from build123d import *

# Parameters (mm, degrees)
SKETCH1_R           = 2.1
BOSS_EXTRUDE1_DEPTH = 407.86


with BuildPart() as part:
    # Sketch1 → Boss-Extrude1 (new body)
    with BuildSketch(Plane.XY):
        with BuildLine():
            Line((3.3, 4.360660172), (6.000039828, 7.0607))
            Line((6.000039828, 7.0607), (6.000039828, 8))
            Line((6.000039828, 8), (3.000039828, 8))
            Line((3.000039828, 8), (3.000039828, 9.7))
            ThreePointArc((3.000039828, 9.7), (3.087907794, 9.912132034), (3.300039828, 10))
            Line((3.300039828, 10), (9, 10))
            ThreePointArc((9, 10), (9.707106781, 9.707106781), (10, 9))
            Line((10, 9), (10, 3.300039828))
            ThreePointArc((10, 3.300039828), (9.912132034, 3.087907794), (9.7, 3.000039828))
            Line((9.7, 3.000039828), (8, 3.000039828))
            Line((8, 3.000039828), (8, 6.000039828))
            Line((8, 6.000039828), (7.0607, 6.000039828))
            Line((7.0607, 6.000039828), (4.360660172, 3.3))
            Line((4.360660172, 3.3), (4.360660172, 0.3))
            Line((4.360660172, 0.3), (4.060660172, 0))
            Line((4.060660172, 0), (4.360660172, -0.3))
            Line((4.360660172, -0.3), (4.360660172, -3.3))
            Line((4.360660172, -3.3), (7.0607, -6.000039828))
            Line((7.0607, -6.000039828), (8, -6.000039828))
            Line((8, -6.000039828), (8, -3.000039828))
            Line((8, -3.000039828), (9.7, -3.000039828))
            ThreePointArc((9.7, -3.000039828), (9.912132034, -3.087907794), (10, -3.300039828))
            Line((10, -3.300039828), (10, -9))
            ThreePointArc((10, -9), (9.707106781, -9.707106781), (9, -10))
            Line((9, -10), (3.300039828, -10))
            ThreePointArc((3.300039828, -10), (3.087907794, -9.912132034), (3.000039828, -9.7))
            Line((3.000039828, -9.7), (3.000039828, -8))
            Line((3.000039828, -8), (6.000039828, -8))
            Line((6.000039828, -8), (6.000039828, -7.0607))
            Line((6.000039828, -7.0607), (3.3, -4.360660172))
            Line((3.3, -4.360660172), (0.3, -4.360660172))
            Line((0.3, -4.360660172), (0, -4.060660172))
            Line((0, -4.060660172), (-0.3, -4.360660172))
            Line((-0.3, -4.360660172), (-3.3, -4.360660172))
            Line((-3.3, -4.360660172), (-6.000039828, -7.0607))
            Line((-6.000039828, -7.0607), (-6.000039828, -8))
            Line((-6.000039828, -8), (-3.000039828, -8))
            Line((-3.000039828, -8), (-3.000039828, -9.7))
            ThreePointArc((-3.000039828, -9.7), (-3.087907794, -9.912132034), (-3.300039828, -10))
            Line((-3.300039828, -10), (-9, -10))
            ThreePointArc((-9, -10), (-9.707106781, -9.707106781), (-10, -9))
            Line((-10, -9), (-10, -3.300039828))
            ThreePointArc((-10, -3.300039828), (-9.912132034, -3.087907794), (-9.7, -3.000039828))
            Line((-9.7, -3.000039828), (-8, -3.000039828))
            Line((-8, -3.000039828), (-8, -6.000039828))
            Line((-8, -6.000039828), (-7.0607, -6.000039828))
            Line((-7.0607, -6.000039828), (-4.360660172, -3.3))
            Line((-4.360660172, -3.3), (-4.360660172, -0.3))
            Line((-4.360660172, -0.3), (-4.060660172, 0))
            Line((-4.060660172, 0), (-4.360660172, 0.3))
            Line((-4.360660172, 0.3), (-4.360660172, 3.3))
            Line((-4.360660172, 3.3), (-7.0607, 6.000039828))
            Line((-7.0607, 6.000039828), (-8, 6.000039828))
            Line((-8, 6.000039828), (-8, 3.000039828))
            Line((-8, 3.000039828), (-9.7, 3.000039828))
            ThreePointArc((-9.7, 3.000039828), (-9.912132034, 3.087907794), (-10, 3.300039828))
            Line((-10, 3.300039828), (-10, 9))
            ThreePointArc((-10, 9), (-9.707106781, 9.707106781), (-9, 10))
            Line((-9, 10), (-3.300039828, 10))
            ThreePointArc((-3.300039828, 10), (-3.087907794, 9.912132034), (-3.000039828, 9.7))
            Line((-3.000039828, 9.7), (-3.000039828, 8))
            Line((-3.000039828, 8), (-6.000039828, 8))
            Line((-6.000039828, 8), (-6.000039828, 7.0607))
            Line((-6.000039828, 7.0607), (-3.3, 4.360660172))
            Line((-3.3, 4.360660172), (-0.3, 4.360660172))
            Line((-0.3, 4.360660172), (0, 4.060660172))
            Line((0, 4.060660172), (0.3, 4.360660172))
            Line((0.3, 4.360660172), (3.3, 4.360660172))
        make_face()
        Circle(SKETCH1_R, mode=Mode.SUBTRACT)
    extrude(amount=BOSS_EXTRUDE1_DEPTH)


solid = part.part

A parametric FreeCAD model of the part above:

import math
import FreeCAD as App
import Part
import Sketcher

doc = App.newDocument("Part")
body = doc.addObject("PartDesign::Body", "Body")

sketch1 = body.newObject("Sketcher::SketchObject", "Sketch")
sketch1.AttachmentSupport = (doc.getObject("XY_Plane"), [""])
sketch1.MapMode = "FlatFace"
sketch1.addGeometry([
    Part.LineSegment(App.Vector(6.00004, 7.0607, 0), App.Vector(3.3, 4.36066, 0)),
    Part.LineSegment(App.Vector(3.3, 4.36066, 0), App.Vector(0.3, 4.36066, 0)),
    Part.LineSegment(App.Vector(0.3, 4.36066, 0), App.Vector(0, 4.06066, 0)),
    Part.LineSegment(App.Vector(0, 4.06066, 0), App.Vector(-0.3, 4.36066, 0)),
    Part.LineSegment(App.Vector(-0.3, 4.36066, 0), App.Vector(-3.3, 4.36066, 0)),
    Part.LineSegment(App.Vector(-3.3, 4.36066, 0), App.Vector(-6.00004, 7.0607, 0)),
    Part.LineSegment(App.Vector(-6.00004, 7.0607, 0), App.Vector(-6.00004, 8, 0)),
    Part.LineSegment(App.Vector(-6.00004, 8, 0), App.Vector(-3.00004, 8, 0)),
    Part.LineSegment(App.Vector(-3.00004, 8, 0), App.Vector(-3.00004, 9.7, 0)),
    Part.ArcOfCircle(Part.Circle(App.Vector(-3.30004, 9.7, 0), App.Vector(0, 0, 1), 0.3), math.radians(0), math.radians(90)),
    Part.LineSegment(App.Vector(-3.30004, 10, 0), App.Vector(-9, 10, 0)),
    Part.ArcOfCircle(Part.Circle(App.Vector(-9, 9, 0), App.Vector(0, 0, 1), 1), math.radians(90), math.radians(180)),
    Part.LineSegment(App.Vector(-10, 9, 0), App.Vector(-10, 3.30004, 0)),
    Part.ArcOfCircle(Part.Circle(App.Vector(-9.7, 3.30004, 0), App.Vector(0, 0, 1), 0.3), math.radians(-180), math.radians(-90)),
    Part.LineSegment(App.Vector(-9.7, 3.00004, 0), App.Vector(-8, 3.00004, 0)),
    Part.LineSegment(App.Vector(-8, 3.00004, 0), App.Vector(-8, 6.00004, 0)),
    Part.LineSegment(App.Vector(-8, 6.00004, 0), App.Vector(-7.0607, 6.00004, 0)),
    Part.LineSegment(App.Vector(-7.0607, 6.00004, 0), App.Vector(-4.36066, 3.3, 0)),
    Part.LineSegment(App.Vector(-4.36066, 3.3, 0), App.Vector(-4.36066, 0.3, 0)),
    Part.LineSegment(App.Vector(-4.36066, 0.3, 0), App.Vector(-4.06066, 0, 0)),
    Part.LineSegment(App.Vector(-4.06066, 0, 0), App.Vector(-4.36066, -0.3, 0)),
    Part.LineSegment(App.Vector(-4.36066, -0.3, 0), App.Vector(-4.36066, -3.3, 0)),
    Part.LineSegment(App.Vector(-4.36066, -3.3, 0), App.Vector(-7.0607, -6.00004, 0)),
    Part.LineSegment(App.Vector(-7.0607, -6.00004, 0), App.Vector(-8, -6.00004, 0)),
    Part.LineSegment(App.Vector(-8, -6.00004, 0), App.Vector(-8, -3.00004, 0)),
    Part.LineSegment(App.Vector(-8, -3.00004, 0), App.Vector(-9.7, -3.00004, 0)),
    Part.ArcOfCircle(Part.Circle(App.Vector(-9.7, -3.30004, 0), App.Vector(0, 0, 1), 0.3), math.radians(90), math.radians(180)),
    Part.LineSegment(App.Vector(-10, -3.30004, 0), App.Vector(-10, -9, 0)),
    Part.ArcOfCircle(Part.Circle(App.Vector(-9, -9, 0), App.Vector(0, 0, 1), 1), math.radians(-180), math.radians(-90)),
    Part.LineSegment(App.Vector(-9, -10, 0), App.Vector(-3.30004, -10, 0)),
    Part.ArcOfCircle(Part.Circle(App.Vector(-3.30004, -9.7, 0), App.Vector(0, 0, 1), 0.3), math.radians(-90), math.radians(0)),
    Part.LineSegment(App.Vector(-3.00004, -9.7, 0), App.Vector(-3.00004, -8, 0)),
    Part.LineSegment(App.Vector(-3.00004, -8, 0), App.Vector(-6.00004, -8, 0)),
    Part.LineSegment(App.Vector(-6.00004, -8, 0), App.Vector(-6.00004, -7.0607, 0)),
    Part.LineSegment(App.Vector(-6.00004, -7.0607, 0), App.Vector(-3.3, -4.36066, 0)),
    Part.LineSegment(App.Vector(-3.3, -4.36066, 0), App.Vector(-0.3, -4.36066, 0)),
    Part.LineSegment(App.Vector(-0.3, -4.36066, 0), App.Vector(0, -4.06066, 0)),
    Part.LineSegment(App.Vector(0, -4.06066, 0), App.Vector(0.3, -4.36066, 0)),
    Part.LineSegment(App.Vector(0.3, -4.36066, 0), App.Vector(3.3, -4.36066, 0)),
    Part.LineSegment(App.Vector(3.3, -4.36066, 0), App.Vector(6.00004, -7.0607, 0)),
    Part.LineSegment(App.Vector(6.00004, -7.0607, 0), App.Vector(6.00004, -8, 0)),
    Part.LineSegment(App.Vector(6.00004, -8, 0), App.Vector(3.00004, -8, 0)),
    Part.LineSegment(App.Vector(3.00004, -8, 0), App.Vector(3.00004, -9.7, 0)),
    Part.ArcOfCircle(Part.Circle(App.Vector(3.30004, -9.7, 0), App.Vector(0, 0, 1), 0.3), math.radians(-180), math.radians(-90)),
    Part.LineSegment(App.Vector(3.30004, -10, 0), App.Vector(9, -10, 0)),
    Part.ArcOfCircle(Part.Circle(App.Vector(9, -9, 0), App.Vector(0, 0, 1), 1), math.radians(-90), math.radians(0)),
    Part.LineSegment(App.Vector(10, -9, 0), App.Vector(10, -3.30004, 0)),
    Part.ArcOfCircle(Part.Circle(App.Vector(9.7, -3.30004, 0), App.Vector(0, 0, 1), 0.3), math.radians(0), math.radians(90)),
    Part.LineSegment(App.Vector(9.7, -3.00004, 0), App.Vector(8, -3.00004, 0)),
    Part.LineSegment(App.Vector(8, -3.00004, 0), App.Vector(8, -6.00004, 0)),
    Part.LineSegment(App.Vector(8, -6.00004, 0), App.Vector(7.0607, -6.00004, 0)),
    Part.LineSegment(App.Vector(7.0607, -6.00004, 0), App.Vector(4.36066, -3.3, 0)),
    Part.LineSegment(App.Vector(4.36066, -3.3, 0), App.Vector(4.36066, -0.3, 0)),
    Part.LineSegment(App.Vector(4.36066, -0.3, 0), App.Vector(4.06066, 0, 0)),
    Part.LineSegment(App.Vector(4.06066, 0, 0), App.Vector(4.36066, 0.3, 0)),
    Part.LineSegment(App.Vector(4.36066, 0.3, 0), App.Vector(4.36066, 3.3, 0)),
    Part.LineSegment(App.Vector(4.36066, 3.3, 0), App.Vector(7.0607, 6.00004, 0)),
    Part.LineSegment(App.Vector(7.0607, 6.00004, 0), App.Vector(8, 6.00004, 0)),
    Part.LineSegment(App.Vector(8, 6.00004, 0), App.Vector(8, 3.00004, 0)),
    Part.LineSegment(App.Vector(8, 3.00004, 0), App.Vector(9.7, 3.00004, 0)),
    Part.ArcOfCircle(Part.Circle(App.Vector(9.7, 3.30004, 0), App.Vector(0, 0, 1), 0.3), math.radians(-90), math.radians(0)),
    Part.LineSegment(App.Vector(10, 3.30004, 0), App.Vector(10, 9, 0)),
    Part.ArcOfCircle(Part.Circle(App.Vector(9, 9, 0), App.Vector(0, 0, 1), 1), math.radians(0), math.radians(90)),
    Part.LineSegment(App.Vector(9, 10, 0), App.Vector(3.30004, 10, 0)),
    Part.ArcOfCircle(Part.Circle(App.Vector(3.30004, 9.7, 0), App.Vector(0, 0, 1), 0.3), math.radians(90), math.radians(180)),
    Part.LineSegment(App.Vector(3.00004, 9.7, 0), App.Vector(3.00004, 8, 0)),
    Part.LineSegment(App.Vector(3.00004, 8, 0), App.Vector(6.00004, 8, 0)),
    Part.LineSegment(App.Vector(6.00004, 8, 0), App.Vector(6.00004, 7.0607, 0)),
    Part.Circle(App.Vector(0, 0, 0), App.Vector(0, 0, 1), 2.1),
], False)
sketch1.addConstraint([
    Sketcher.Constraint("Coincident", 0, 2, 1, 1),
    Sketcher.Constraint("Coincident", 1, 2, 2, 1),
    Sketcher.Constraint("Coincident", 2, 2, 3, 1),
    Sketcher.Constraint("Coincident", 3, 2, 4, 1),
    Sketcher.Constraint("Coincident", 4, 2, 5, 1),
    Sketcher.Constraint("Coincident", 5, 2, 6, 1),
    Sketcher.Constraint("Coincident", 6, 2, 7, 1),
    Sketcher.Constraint("Coincident", 7, 2, 8, 1),
    Sketcher.Constraint("Tangent", 8, 2, 9, 1),
    Sketcher.Constraint("Tangent", 9, 2, 10, 1),
    Sketcher.Constraint("Tangent", 10, 2, 11, 1),
    Sketcher.Constraint("Tangent", 11, 2, 12, 1),
    Sketcher.Constraint("Tangent", 12, 2, 13, 1),
    Sketcher.Constraint("Tangent", 13, 2, 14, 1),
    Sketcher.Constraint("Coincident", 14, 2, 15, 1),
    Sketcher.Constraint("Coincident", 15, 2, 16, 1),
    Sketcher.Constraint("Coincident", 16, 2, 17, 1),
    Sketcher.Constraint("Coincident", 17, 2, 18, 1),
    Sketcher.Constraint("Coincident", 18, 2, 19, 1),
    Sketcher.Constraint("Coincident", 19, 2, 20, 1),
    Sketcher.Constraint("Coincident", 20, 2, 21, 1),
    Sketcher.Constraint("Coincident", 21, 2, 22, 1),
    Sketcher.Constraint("Coincident", 22, 2, 23, 1),
    Sketcher.Constraint("Coincident", 23, 2, 24, 1),
    Sketcher.Constraint("Coincident", 24, 2, 25, 1),
    Sketcher.Constraint("Tangent", 25, 2, 26, 1),
    Sketcher.Constraint("Tangent", 26, 2, 27, 1),
    Sketcher.Constraint("Tangent", 27, 2, 28, 1),
    Sketcher.Constraint("Tangent", 28, 2, 29, 1),
    Sketcher.Constraint("Tangent", 29, 2, 30, 1),
    Sketcher.Constraint("Tangent", 30, 2, 31, 1),
    Sketcher.Constraint("Coincident", 31, 2, 32, 1),
    Sketcher.Constraint("Coincident", 32, 2, 33, 1),
    Sketcher.Constraint("Coincident", 33, 2, 34, 1),
    Sketcher.Constraint("Coincident", 34, 2, 35, 1),
    Sketcher.Constraint("Coincident", 35, 2, 36, 1),
    Sketcher.Constraint("Coincident", 36, 2, 37, 1),
    Sketcher.Constraint("Coincident", 37, 2, 38, 1),
    Sketcher.Constraint("Coincident", 38, 2, 39, 1),
    Sketcher.Constraint("Coincident", 39, 2, 40, 1),
    Sketcher.Constraint("Coincident", 40, 2, 41, 1),
    Sketcher.Constraint("Coincident", 41, 2, 42, 1),
    Sketcher.Constraint("Tangent", 42, 2, 43, 1),
    Sketcher.Constraint("Tangent", 43, 2, 44, 1),
    Sketcher.Constraint("Tangent", 44, 2, 45, 1),
    Sketcher.Constraint("Tangent", 45, 2, 46, 1),
    Sketcher.Constraint("Tangent", 46, 2, 47, 1),
    Sketcher.Constraint("Tangent", 47, 2, 48, 1),
    Sketcher.Constraint("Coincident", 48, 2, 49, 1),
    Sketcher.Constraint("Coincident", 49, 2, 50, 1),
    Sketcher.Constraint("Coincident", 50, 2, 51, 1),
    Sketcher.Constraint("Coincident", 51, 2, 52, 1),
    Sketcher.Constraint("Coincident", 52, 2, 53, 1),
    Sketcher.Constraint("Coincident", 53, 2, 54, 1),
    Sketcher.Constraint("Coincident", 54, 2, 55, 1),
    Sketcher.Constraint("Coincident", 55, 2, 56, 1),
    Sketcher.Constraint("Coincident", 56, 2, 57, 1),
    Sketcher.Constraint("Coincident", 57, 2, 58, 1),
    Sketcher.Constraint("Coincident", 58, 2, 59, 1),
    Sketcher.Constraint("Tangent", 59, 2, 60, 1),
    Sketcher.Constraint("Tangent", 60, 2, 61, 1),
    Sketcher.Constraint("Tangent", 61, 2, 62, 1),
    Sketcher.Constraint("Tangent", 62, 2, 63, 1),
    Sketcher.Constraint("Tangent", 63, 2, 64, 1),
    Sketcher.Constraint("Tangent", 64, 2, 65, 1),
    Sketcher.Constraint("Coincident", 65, 2, 66, 1),
    Sketcher.Constraint("Coincident", 66, 2, 67, 1),
    Sketcher.Constraint("Coincident", 67, 2, 0, 1),
    Sketcher.Constraint("Horizontal", 1),
    Sketcher.Constraint("Horizontal", 4),
    Sketcher.Constraint("Vertical", 6),
    Sketcher.Constraint("Horizontal", 7),
    Sketcher.Constraint("Vertical", 8),
    Sketcher.Constraint("Horizontal", 10),
    Sketcher.Constraint("Vertical", 12),
    Sketcher.Constraint("Horizontal", 14),
    Sketcher.Constraint("Vertical", 15),
    Sketcher.Constraint("Horizontal", 16),
    Sketcher.Constraint("Vertical", 18),
    Sketcher.Constraint("Vertical", 21),
    Sketcher.Constraint("Horizontal", 23),
    Sketcher.Constraint("Vertical", 24),
    Sketcher.Constraint("Horizontal", 25),
    Sketcher.Constraint("Vertical", 27),
    Sketcher.Constraint("Horizontal", 29),
    Sketcher.Constraint("Vertical", 31),
    Sketcher.Constraint("Horizontal", 32),
    Sketcher.Constraint("Vertical", 33),
    Sketcher.Constraint("Horizontal", 35),
    Sketcher.Constraint("Horizontal", 38),
    Sketcher.Constraint("Vertical", 40),
    Sketcher.Constraint("Horizontal", 41),
    Sketcher.Constraint("Vertical", 42),
    Sketcher.Constraint("Horizontal", 44),
    Sketcher.Constraint("Vertical", 46),
    Sketcher.Constraint("Horizontal", 48),
    Sketcher.Constraint("Vertical", 49),
    Sketcher.Constraint("Horizontal", 50),
    Sketcher.Constraint("Vertical", 52),
    Sketcher.Constraint("Vertical", 55),
    Sketcher.Constraint("Horizontal", 57),
    Sketcher.Constraint("Vertical", 58),
    Sketcher.Constraint("Horizontal", 59),
    Sketcher.Constraint("Vertical", 61),
    Sketcher.Constraint("Horizontal", 63),
    Sketcher.Constraint("Vertical", 65),
    Sketcher.Constraint("Horizontal", 66),
    Sketcher.Constraint("Vertical", 67),
    Sketcher.Constraint("Coincident", 68, 3, -1, 1),
    Sketcher.Constraint("Equal", 9, 13),
    Sketcher.Constraint("Equal", 13, 26),
    Sketcher.Constraint("Equal", 11, 28),
    Sketcher.Constraint("Equal", 26, 30),
    Sketcher.Constraint("Equal", 30, 43),
    Sketcher.Constraint("Equal", 28, 45),
    Sketcher.Constraint("Equal", 43, 47),
    Sketcher.Constraint("Equal", 47, 60),
    Sketcher.Constraint("Equal", 45, 62),
    Sketcher.Constraint("Equal", 60, 64),
    Sketcher.Constraint("Symmetric", 9, 3, 43, 3, -1, 1),
    Sketcher.Constraint("Symmetric", 13, 3, 47, 3, -1, 1),
    Sketcher.Constraint("Symmetric", 26, 3, 60, 3, -1, 1),
    Sketcher.Constraint("Symmetric", 30, 3, 64, 3, -1, 1),
    Sketcher.Constraint("Symmetric", 0, 2, 34, 2, -1, 1),
    Sketcher.Constraint("Symmetric", 2, 2, 36, 2, -1, 1),
    Sketcher.Constraint("Symmetric", 3, 2, 37, 2, -1, 1),
    Sketcher.Constraint("Symmetric", 5, 2, 39, 2, -1, 1),
    Sketcher.Constraint("Symmetric", 15, 2, 49, 2, -1, 1),
    Sketcher.Constraint("Symmetric", 17, 2, 51, 2, -1, 1),
    Sketcher.Constraint("Symmetric", 19, 2, 53, 2, -1, 1),
    Sketcher.Constraint("Symmetric", 20, 2, 54, 2, -1, 1),
    Sketcher.Constraint("Symmetric", 22, 2, 56, 2, -1, 1),
    Sketcher.Constraint("Symmetric", 32, 2, 66, 2, -1, 1),
    Sketcher.Constraint("Symmetric", 30, 3, 43, 3, -2),
    Sketcher.Constraint("Symmetric", 26, 3, 47, 3, -2),
    Sketcher.Constraint("Symmetric", 1, 2, 3, 2, -2),
    Sketcher.Constraint("Symmetric", 33, 2, 39, 2, -2),
    Sketcher.Constraint("Symmetric", 23, 2, 49, 2, -2),
    Sketcher.Constraint("Symmetric", 21, 2, 51, 2, -2),
    Sketcher.Constraint("PointOnObject", 2, 2, -2),
    Sketcher.Constraint("PointOnObject", 19, 2, -1),
    Sketcher.Constraint("Parallel", 0, 2),
    Sketcher.Constraint("Perpendicular", 2, 3),
    Sketcher.Constraint("Parallel", 3, 5),
    Sketcher.Constraint("Parallel", 5, 17),
    Sketcher.Constraint("Parallel", 17, 19),
    Sketcher.Constraint("Perpendicular", 19, 20),
    Sketcher.Constraint("Parallel", 20, 22),
    Sketcher.Constraint("Parallel", 22, 34),
    Sketcher.Constraint("Parallel", 34, 36),
    Sketcher.Constraint("Parallel", 37, 39),
    Sketcher.Constraint("Parallel", 39, 51),
    Sketcher.Constraint("Parallel", 51, 53),
    Sketcher.Constraint("Parallel", 54, 56),
    Sketcher.Constraint("Horizontal", 32, 2, 40, 2),
    Sketcher.Constraint("Horizontal", 7, 2, 65, 2),
    Sketcher.Constraint("Vertical", 49, 2, 57, 2),
    Sketcher.Constraint("Equal", 4, 7),
    Sketcher.Constraint("Equal", 57, 6),
    Sketcher.Constraint("Equal", 59, 8),
    Sketcher.Constraint("Equal", 63, 12),
    Sketcher.Constraint("Equal", 66, 15),
    Sketcher.Constraint("Equal", 15, 18),
    Sketcher.Constraint("Equal", 5, 17),
    Sketcher.Constraint("Equal", 3, 19),
    Sketcher.Constraint("Radius", 11, 1.0),
    Sketcher.Constraint("Diameter", 68, 4.2),
    Sketcher.Constraint("Radius", 9, 0.3),
    Sketcher.Constraint("DistanceX", 1, 2, 1, 1, 3.0),
    Sketcher.Constraint("DistanceX", 14, 1, 14, 2, 1.7),
    Sketcher.Constraint("DistanceX", 11, 3, -1, 1, 9.0),
    Sketcher.Constraint("DistanceX", -1, 1, 0, 2, 3.3),
    Sketcher.Constraint("DistanceX", 16, 1, 16, 2, 0.9393),
    Sketcher.Constraint("DistanceX", 10, 2, 10, 1, 5.69996),
])
pad1 = body.newObject("PartDesign::Pad", "Pad")
pad1.Profile = sketch1
pad1.Length = 407.86

doc.recompute()
